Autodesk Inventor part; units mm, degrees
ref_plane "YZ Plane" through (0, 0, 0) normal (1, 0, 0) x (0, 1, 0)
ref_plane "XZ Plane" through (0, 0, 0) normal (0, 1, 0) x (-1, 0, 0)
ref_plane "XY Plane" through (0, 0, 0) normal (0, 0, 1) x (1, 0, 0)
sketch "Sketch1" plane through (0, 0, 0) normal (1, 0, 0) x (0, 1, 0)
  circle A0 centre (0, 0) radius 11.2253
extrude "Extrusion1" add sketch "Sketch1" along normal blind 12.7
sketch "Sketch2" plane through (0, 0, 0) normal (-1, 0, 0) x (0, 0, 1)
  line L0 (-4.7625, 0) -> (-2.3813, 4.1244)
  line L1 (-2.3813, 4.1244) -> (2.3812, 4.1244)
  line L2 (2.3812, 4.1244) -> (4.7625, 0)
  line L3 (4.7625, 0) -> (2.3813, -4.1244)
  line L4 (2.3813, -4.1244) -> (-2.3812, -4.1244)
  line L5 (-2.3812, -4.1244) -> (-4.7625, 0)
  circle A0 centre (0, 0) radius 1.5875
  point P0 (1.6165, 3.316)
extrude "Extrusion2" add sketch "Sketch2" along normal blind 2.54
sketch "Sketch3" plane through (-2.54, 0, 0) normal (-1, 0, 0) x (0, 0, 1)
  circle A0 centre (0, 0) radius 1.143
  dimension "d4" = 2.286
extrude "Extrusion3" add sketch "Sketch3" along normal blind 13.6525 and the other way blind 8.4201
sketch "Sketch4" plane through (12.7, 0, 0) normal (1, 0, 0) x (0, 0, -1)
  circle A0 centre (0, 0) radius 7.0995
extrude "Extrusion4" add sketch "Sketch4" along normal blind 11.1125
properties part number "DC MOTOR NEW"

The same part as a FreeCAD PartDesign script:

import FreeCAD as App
import Part
import Sketcher

V = App.Vector
Q = App.Units.Quantity

doc = App.newDocument("Part")
body = doc.addObject("PartDesign::Body", "Body")

sketch1 = body.newObject("Sketcher::SketchObject", "Sketch")
sketch1.AttachmentSupport = (doc.getObject("YZ_Plane"), [""])
sketch1.MapMode = "FlatFace"
sketch1.addGeometry(Part.Circle(V(0, 0, 0), V(0, 0, 1), 11), False)
sketch1.addConstraint([
    Sketcher.Constraint("Coincident", 0, 3, -1, 1),
    Sketcher.Constraint("Diameter", 0, 22.4506),
])
pad1 = body.newObject("PartDesign::Pad", "Pad")
pad1.Profile = sketch1
pad1.Length = Q("0.5 in")

sketch2 = body.newObject("Sketcher::SketchObject", "Sketch001")
sketch2.AttachmentSupport = (doc.getObject("YZ_Plane"), [""])
sketch2.MapMode = "FlatFace"
sketch2.addGeometry([
    Part.LineSegment(V(4.1, -2.4, 0), V(0, -4.8, 0)),
    Part.LineSegment(V(0, -4.8, 0), V(-4.1, -2.4, 0)),
    Part.LineSegment(V(-4.1, -2.4, 0), V(-4.1, 2.4, 0)),
    Part.LineSegment(V(-4.1, 2.4, 0), V(0, 4.8, 0)),
    Part.LineSegment(V(0, 4.8, 0), V(4.1, 2.4, 0)),
    Part.LineSegment(V(4.1, 2.4, 0), V(4.1, -2.4, 0)),
    Part.Circle(V(0, 0, 0), V(0, 0, 1), 1.6),
], False)
sketch2.addConstraint([
    Sketcher.Constraint("Coincident", 0, 2, 1, 1),
    Sketcher.Constraint("Coincident", 1, 2, 2, 1),
    Sketcher.Constraint("Coincident", 2, 2, 3, 1),
    Sketcher.Constraint("Coincident", 3, 2, 4, 1),
    Sketcher.Constraint("Coincident", 4, 2, 5, 1),
    Sketcher.Constraint("Coincident", 5, 2, 0, 1),
    Sketcher.Constraint("Vertical", 2),
    Sketcher.Constraint("Vertical", 5),
    Sketcher.Constraint("Coincident", 6, 3, -1, 1),
    Sketcher.Constraint("Symmetric", 0, 2, 3, 2, -1, 1),
    Sketcher.Constraint("Symmetric", 1, 2, 4, 2, -1, 1),
    Sketcher.Constraint("PointOnObject", 0, 2, -2),
    Sketcher.Constraint("Parallel", 0, 3),
    Sketcher.Constraint("Horizontal", 2, 2, 4, 2),
    Sketcher.Constraint("Diameter", 6, Q("0.125 in")),
    Sketcher.Constraint("Angle", 0, Q("-150.0002 deg")),
    Sketcher.Constraint("DistanceY", 2, 1, 2, 2, Q("0.1875 in")),
    Sketcher.Constraint("Distance", 0, Q("0.1875 in")),
])
pad2 = body.newObject("PartDesign::Pad", "Pad001")
pad2.Profile = sketch2
pad2.Length = Q("0.1 in")
pad2.Reversed = True

sketch3 = body.newObject("Sketcher::SketchObject", "Sketch002")
sketch3.AttachmentSupport = (doc.getObject("YZ_Plane"), [""])
sketch3.MapMode = "FlatFace"
sketch3.AttachmentOffset = App.Placement(V(0, 0, -0.1 * 25.4), App.Rotation())
sketch3.addGeometry(Part.Circle(V(0, 0, 0), V(0, 0, 1), 1.1), False)
sketch3.addConstraint([
    Sketcher.Constraint("Coincident", 0, 3, -1, 1),
    Sketcher.Constraint("Diameter", 0, Q("0.09 in")),
])
pad3 = body.newObject("PartDesign::Pad", "Pad002")
pad3.Profile = sketch3
pad3.Type = "TwoLengths"
pad3.Length = Q("0.5375 in")
pad3.Length2 = Q("0.3315 in")
pad3.Reversed = True

sketch4 = body.newObject("Sketcher::SketchObject", "Sketch003")
sketch4.AttachmentSupport = (doc.getObject("YZ_Plane"), [""])
sketch4.MapMode = "FlatFace"
sketch4.AttachmentOffset = App.Placement(V(0, 0, 0.5 * 25.4), App.Rotation())
sketch4.addGeometry(Part.Circle(V(0, 0, 0), V(0, 0, 1), 7), False)
sketch4.addConstraint([
    Sketcher.Constraint("Coincident", 0, 3, -1, 1),
    Sketcher.Constraint("Diameter", 0, 14.199),
])
pad4 = body.newObject("PartDesign::Pad", "Pad003")
pad4.Profile = sketch4
pad4.Length = Q("0.4375 in")

doc.recompute()
